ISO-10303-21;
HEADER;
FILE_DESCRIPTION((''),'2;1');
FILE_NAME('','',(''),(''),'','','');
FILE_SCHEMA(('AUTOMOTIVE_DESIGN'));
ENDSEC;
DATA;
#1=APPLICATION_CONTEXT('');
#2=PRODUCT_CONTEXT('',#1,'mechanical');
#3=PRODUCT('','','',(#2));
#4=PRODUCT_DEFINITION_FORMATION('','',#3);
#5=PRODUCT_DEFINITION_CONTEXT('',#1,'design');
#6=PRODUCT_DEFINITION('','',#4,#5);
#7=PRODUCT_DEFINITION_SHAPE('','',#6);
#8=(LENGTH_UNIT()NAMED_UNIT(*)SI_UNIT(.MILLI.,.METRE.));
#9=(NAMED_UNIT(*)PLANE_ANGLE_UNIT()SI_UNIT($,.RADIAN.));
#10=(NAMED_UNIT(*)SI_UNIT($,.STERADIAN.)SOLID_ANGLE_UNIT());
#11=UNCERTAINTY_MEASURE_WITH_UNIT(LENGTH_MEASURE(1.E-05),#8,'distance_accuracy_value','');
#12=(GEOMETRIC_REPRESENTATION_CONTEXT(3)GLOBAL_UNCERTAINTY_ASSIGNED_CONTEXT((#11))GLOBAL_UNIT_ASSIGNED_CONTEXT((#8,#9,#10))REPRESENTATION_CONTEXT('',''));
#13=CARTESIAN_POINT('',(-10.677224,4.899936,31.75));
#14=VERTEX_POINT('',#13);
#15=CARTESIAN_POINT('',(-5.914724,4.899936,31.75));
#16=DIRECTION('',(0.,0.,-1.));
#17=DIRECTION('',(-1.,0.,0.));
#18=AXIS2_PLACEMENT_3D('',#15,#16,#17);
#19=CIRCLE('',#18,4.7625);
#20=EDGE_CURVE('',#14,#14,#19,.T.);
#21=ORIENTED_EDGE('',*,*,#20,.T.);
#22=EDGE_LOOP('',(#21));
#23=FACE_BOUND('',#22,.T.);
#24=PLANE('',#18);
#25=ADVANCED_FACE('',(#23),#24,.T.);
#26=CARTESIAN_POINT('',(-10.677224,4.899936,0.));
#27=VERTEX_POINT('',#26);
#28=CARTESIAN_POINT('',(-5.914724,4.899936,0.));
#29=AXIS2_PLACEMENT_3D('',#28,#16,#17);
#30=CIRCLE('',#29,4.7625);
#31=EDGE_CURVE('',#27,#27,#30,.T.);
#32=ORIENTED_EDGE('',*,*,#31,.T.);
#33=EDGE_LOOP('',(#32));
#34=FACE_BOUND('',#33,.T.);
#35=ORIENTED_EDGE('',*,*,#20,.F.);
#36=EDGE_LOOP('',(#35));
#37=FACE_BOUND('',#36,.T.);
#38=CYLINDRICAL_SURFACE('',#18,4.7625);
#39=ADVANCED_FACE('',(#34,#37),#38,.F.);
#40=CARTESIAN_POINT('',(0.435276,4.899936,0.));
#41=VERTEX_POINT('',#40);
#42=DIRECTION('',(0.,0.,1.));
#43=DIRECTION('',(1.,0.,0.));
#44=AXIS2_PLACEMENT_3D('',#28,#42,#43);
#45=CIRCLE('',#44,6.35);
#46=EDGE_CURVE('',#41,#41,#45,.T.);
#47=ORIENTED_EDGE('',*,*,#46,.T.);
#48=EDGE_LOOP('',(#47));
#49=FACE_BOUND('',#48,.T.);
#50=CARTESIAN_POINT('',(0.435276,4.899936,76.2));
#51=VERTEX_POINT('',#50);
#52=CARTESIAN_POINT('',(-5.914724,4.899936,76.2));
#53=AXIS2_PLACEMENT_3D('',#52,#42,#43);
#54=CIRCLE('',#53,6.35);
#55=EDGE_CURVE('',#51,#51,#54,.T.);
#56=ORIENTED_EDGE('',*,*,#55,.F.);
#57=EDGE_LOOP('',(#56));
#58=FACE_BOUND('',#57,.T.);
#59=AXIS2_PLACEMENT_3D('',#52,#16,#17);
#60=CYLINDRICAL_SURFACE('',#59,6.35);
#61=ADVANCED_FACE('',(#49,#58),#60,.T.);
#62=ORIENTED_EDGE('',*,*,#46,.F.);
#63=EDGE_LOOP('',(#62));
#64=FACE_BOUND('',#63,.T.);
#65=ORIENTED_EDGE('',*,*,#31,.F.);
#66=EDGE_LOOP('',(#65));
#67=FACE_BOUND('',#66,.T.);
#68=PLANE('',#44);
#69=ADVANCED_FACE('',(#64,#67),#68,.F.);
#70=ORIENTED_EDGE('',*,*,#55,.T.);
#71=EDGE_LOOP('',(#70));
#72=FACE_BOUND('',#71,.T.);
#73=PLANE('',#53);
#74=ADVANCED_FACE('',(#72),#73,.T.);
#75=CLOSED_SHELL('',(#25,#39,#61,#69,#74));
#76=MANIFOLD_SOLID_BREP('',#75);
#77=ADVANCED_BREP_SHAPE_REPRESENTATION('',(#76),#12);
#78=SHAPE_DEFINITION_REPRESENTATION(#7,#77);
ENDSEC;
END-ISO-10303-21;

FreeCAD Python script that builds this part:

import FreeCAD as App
import Part
import Sketcher
Q = App.Units.Quantity

doc = App.newDocument("Part")
body = doc.addObject("PartDesign::Body", "Body")

sketch1 = body.newObject("Sketcher::SketchObject", "Sketch")
sketch1.AttachmentSupport = (doc.getObject("XY_Plane"), [""])
sketch1.MapMode = "FlatFace"
sketch1.addGeometry(Part.Circle(App.Vector(-5.914724, 4.899936, 0), App.Vector(0, 0, 1), 6.35), False)
sketch1.addConstraint([
    Sketcher.Constraint("Diameter", 0, Q("0.5 in")),
    Sketcher.Constraint("DistanceX", 0, 3, -1, 1, 5.914724),
    Sketcher.Constraint("DistanceY", -1, 1, 0, 3, 4.899936),
])
pad1 = body.newObject("PartDesign::Pad", "Pad")
pad1.Profile = sketch1
pad1.Length = Q("3 in")

sketch2 = body.newObject("Sketcher::SketchObject", "Sketch001")
sketch2.AttachmentSupport = (doc.getObject("XY_Plane"), [""])
sketch2.MapMode = "FlatFace"
sketch2.addGeometry(Part.Circle(App.Vector(-5.914724, 4.899936, 0), App.Vector(0, 0, 1), 4.7625), False)
sketch2.addConstraint([
    Sketcher.Constraint("Diameter", 0, Q("0.375 in")),
    Sketcher.Constraint("DistanceX", 0, 3, -1, 1, 5.914724),
    Sketcher.Constraint("DistanceY", -1, 1, 0, 3, 4.899936),
])
pocket1 = body.newObject("PartDesign::Pocket", "Pocket")
pocket1.Profile = sketch2
pocket1.Length = Q("1.25 in")
pocket1.Reversed = True

doc.recompute()
